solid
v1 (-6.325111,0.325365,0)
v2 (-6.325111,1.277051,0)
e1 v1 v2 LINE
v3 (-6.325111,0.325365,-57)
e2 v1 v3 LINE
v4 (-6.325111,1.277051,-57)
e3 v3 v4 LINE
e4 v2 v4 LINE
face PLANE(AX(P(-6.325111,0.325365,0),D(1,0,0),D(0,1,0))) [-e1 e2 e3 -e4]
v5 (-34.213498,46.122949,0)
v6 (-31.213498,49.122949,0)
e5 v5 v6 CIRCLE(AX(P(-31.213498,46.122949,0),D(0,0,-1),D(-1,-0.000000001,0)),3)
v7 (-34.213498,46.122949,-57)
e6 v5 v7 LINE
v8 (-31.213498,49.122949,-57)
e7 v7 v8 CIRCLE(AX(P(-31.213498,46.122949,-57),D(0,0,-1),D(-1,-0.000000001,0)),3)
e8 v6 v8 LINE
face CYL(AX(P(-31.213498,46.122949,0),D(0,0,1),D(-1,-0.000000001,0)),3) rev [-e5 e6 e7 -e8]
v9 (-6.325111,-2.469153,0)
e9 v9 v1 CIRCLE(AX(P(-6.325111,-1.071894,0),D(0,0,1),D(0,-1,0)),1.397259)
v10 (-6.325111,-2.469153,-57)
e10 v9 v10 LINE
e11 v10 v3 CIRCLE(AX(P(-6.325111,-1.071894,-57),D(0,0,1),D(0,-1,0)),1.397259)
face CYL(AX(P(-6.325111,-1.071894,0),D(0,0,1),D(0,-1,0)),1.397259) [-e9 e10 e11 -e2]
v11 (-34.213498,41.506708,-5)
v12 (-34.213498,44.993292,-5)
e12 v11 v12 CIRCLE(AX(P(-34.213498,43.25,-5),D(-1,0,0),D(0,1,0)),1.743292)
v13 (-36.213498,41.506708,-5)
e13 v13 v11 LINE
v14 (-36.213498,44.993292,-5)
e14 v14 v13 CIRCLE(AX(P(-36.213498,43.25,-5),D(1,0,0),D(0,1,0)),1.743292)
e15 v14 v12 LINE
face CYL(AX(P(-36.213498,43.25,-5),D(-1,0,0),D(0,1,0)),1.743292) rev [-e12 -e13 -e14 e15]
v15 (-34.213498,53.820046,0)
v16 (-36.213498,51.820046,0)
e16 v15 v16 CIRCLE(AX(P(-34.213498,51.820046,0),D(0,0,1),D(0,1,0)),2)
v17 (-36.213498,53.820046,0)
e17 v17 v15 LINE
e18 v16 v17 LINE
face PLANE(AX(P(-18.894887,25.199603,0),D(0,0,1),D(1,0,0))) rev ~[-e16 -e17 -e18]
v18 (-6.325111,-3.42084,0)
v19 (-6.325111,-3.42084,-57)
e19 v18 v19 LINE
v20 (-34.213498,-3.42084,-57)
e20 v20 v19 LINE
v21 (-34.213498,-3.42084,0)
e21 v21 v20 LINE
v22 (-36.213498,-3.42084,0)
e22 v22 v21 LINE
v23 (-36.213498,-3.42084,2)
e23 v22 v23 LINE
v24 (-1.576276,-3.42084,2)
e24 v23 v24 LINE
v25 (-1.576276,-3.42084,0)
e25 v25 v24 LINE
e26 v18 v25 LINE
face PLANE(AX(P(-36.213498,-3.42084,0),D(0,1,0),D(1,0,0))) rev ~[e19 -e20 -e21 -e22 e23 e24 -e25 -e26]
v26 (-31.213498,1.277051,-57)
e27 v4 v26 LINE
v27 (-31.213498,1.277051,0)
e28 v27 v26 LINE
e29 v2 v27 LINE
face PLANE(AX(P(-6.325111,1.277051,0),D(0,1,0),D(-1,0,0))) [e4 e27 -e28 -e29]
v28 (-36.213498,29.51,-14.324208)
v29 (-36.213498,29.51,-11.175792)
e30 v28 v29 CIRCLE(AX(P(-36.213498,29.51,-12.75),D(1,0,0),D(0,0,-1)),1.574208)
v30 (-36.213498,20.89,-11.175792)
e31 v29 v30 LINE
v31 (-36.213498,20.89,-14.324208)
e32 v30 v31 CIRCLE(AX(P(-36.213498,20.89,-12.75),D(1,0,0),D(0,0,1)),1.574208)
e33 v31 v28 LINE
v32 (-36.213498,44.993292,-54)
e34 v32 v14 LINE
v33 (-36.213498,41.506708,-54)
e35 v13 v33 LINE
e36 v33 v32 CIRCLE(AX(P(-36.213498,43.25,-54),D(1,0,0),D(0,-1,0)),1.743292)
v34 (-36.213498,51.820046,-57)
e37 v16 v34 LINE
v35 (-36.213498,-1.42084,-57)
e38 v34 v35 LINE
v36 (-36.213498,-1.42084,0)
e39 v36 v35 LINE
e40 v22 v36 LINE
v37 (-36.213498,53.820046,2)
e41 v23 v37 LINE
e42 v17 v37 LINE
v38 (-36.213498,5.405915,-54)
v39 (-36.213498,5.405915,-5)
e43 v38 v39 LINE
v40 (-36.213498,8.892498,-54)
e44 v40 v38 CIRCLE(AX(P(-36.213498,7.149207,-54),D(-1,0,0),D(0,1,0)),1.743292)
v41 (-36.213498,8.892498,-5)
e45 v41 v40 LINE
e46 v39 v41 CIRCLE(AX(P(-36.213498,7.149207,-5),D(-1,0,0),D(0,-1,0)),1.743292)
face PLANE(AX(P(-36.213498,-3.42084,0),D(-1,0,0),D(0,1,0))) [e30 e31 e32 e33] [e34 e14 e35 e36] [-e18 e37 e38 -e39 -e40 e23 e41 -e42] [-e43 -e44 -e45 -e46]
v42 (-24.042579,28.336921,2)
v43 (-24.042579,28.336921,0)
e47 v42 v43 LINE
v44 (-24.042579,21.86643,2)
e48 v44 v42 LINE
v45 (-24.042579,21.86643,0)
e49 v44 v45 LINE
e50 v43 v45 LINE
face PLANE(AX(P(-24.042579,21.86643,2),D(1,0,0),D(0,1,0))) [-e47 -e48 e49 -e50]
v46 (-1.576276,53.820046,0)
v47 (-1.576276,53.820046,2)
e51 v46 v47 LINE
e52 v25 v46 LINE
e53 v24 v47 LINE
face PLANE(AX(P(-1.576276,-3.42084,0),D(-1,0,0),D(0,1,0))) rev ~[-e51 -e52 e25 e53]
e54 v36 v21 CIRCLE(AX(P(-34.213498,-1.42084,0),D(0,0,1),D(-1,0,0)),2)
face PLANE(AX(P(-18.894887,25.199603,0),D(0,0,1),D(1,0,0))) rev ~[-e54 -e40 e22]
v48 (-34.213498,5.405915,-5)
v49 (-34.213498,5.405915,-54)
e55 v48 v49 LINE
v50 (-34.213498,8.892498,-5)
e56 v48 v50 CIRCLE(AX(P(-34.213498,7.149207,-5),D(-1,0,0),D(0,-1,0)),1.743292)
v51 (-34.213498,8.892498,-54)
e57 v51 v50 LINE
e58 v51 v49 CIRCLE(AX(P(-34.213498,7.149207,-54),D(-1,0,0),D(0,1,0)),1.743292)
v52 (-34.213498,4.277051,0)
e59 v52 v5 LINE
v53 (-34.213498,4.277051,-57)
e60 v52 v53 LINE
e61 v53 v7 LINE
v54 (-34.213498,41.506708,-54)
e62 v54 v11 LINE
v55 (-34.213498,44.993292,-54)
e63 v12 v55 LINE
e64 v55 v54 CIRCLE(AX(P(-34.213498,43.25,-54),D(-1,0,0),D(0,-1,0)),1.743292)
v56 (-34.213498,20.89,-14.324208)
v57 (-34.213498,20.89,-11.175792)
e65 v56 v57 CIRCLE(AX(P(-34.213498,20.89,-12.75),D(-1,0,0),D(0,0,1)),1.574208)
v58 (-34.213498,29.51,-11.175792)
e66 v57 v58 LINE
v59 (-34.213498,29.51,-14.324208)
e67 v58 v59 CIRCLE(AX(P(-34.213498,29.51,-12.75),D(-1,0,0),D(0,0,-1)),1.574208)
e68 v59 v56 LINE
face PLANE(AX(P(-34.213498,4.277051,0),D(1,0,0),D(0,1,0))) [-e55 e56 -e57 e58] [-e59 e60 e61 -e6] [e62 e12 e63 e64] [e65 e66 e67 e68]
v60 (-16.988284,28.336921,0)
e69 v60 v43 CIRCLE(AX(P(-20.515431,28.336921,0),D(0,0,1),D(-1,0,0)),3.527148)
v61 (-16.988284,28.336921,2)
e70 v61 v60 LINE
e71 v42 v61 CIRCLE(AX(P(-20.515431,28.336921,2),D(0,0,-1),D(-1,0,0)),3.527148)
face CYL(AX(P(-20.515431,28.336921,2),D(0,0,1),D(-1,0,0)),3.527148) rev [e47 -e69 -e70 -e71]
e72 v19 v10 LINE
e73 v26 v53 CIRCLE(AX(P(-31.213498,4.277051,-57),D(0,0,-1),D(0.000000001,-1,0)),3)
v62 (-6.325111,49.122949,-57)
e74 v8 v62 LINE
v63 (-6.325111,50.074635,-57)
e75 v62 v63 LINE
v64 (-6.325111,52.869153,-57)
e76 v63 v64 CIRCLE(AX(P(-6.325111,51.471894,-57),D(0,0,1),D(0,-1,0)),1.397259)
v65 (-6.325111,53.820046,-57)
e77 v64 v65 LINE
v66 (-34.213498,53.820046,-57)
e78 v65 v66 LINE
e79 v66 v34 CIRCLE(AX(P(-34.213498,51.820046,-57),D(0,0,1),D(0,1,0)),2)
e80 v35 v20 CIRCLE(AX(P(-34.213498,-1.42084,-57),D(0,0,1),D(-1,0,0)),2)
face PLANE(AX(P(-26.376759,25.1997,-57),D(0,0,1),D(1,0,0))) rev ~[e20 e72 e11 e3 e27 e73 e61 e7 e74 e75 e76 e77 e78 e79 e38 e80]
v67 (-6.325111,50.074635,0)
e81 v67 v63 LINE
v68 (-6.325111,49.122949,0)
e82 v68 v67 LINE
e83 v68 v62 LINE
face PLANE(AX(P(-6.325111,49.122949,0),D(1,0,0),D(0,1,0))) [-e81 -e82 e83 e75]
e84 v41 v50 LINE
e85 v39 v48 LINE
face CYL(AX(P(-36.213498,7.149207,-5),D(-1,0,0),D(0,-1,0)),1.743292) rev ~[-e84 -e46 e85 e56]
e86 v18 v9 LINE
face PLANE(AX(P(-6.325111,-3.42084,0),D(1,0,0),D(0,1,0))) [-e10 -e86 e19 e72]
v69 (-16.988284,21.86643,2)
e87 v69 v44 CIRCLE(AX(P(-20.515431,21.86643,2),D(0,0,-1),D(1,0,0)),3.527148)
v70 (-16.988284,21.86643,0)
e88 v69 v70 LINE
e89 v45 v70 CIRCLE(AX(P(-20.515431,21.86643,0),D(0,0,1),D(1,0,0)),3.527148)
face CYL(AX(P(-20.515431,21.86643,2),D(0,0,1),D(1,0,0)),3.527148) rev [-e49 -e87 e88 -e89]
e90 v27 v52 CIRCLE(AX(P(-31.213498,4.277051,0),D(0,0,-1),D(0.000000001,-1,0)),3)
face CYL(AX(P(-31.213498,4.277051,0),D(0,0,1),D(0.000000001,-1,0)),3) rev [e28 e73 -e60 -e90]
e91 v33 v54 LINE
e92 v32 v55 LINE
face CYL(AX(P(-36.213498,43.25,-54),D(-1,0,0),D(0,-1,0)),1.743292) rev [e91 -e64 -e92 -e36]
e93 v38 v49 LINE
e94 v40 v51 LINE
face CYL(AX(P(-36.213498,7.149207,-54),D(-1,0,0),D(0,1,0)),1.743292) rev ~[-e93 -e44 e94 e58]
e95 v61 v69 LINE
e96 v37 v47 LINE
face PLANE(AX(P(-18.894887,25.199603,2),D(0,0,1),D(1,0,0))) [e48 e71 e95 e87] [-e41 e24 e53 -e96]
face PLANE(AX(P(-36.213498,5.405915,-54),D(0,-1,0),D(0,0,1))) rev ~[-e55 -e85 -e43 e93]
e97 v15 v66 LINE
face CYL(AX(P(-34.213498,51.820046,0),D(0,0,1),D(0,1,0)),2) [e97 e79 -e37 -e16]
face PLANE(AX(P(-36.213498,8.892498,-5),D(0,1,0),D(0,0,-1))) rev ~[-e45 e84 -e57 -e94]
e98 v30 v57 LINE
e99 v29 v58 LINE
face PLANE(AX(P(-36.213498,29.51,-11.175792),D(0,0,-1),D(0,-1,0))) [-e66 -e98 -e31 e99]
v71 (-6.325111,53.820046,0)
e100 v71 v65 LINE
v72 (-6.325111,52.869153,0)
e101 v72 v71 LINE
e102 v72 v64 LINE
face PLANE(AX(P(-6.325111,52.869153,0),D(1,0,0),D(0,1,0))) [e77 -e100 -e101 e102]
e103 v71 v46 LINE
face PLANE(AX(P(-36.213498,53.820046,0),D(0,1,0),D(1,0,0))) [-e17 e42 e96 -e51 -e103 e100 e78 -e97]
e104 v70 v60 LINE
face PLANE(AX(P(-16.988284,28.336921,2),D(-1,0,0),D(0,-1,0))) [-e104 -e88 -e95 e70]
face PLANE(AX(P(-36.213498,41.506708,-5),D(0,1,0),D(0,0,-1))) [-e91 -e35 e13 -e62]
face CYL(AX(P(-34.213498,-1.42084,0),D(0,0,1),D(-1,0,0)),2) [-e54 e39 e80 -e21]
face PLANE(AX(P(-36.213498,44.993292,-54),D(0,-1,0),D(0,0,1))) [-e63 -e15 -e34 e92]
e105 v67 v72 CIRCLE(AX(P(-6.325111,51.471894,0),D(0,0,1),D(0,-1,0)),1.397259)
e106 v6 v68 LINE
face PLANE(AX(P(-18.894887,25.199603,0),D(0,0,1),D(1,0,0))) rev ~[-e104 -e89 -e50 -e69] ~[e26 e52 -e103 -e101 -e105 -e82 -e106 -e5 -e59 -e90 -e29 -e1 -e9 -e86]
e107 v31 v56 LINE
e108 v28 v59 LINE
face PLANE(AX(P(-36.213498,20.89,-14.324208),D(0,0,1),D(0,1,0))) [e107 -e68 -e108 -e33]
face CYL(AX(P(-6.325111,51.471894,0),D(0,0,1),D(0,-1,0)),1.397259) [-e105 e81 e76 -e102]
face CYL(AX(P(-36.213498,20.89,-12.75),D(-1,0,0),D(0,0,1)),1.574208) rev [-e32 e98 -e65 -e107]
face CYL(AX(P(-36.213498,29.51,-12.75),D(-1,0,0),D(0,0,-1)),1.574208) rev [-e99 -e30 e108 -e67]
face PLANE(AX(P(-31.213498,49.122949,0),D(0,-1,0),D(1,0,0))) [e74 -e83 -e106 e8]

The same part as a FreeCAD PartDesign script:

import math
import FreeCAD as App
import Part
import Sketcher

V = App.Vector
Q = App.Units.Quantity

doc = App.newDocument("Part")
body = doc.addObject("PartDesign::Body", "Body")

# Sketch on XY plane
sketch1 = doc.addObject("Sketcher::SketchObject", "Sketch")
body.addObject(sketch1)
sketch1.AttachmentSupport = (doc.XY_Plane, [""])
sketch1.MapMode = "FlatFace"
sketch1.addGeometry([
    Part.LineSegment(V(-36, 54, 0), V(-36, -3, 0)),
    Part.LineSegment(V(-36, -3, 0), V(-2, -3, 0)),
    Part.LineSegment(V(-2, -3, 0), V(-2, 54, 0)),
    Part.LineSegment(V(-2, 54, 0), V(-36, 54, 0)),
], False)
sketch1.addConstraint([
    Sketcher.Constraint("Coincident", 0, 2, 1, 1),
    Sketcher.Constraint("Coincident", 1, 2, 2, 1),
    Sketcher.Constraint("Coincident", 2, 2, 3, 1),
    Sketcher.Constraint("Coincident", 3, 2, 0, 1),
    Sketcher.Constraint("Vertical", 0),
    Sketcher.Constraint("Horizontal", 1),
    Sketcher.Constraint("Vertical", 2),
    Sketcher.Constraint("Horizontal", 3),
    Sketcher.Constraint("DistanceX", 1, 1, 1, 2, Q("34.637222 mm")),
    Sketcher.Constraint("DistanceY", 0, 2, 0, 1, Q("57.240886 mm")),
    Sketcher.Constraint("DistanceY", 0, 2, -1, 1, Q("3.42084 mm")),
    Sketcher.Constraint("DistanceX", 0, 2, -1, 1, Q("36.213498 mm")),
])
pad1 = doc.addObject("PartDesign::Pad", "Pad")
body.addObject(pad1)
pad1.Profile = sketch1
pad1.Length = 2

# Sketch on XY plane
sketch2 = doc.addObject("Sketcher::SketchObject", "Sketch001")
body.addObject(sketch2)
sketch2.AttachmentSupport = (doc.XY_Plane, [""])
sketch2.MapMode = "FlatFace"
sketch2.addGeometry([
    Part.LineSegment(V(-6.3, 53.8, 0), V(-6.3, 52.9, 0)),  # 0
    Part.ArcOfCircle(Part.Circle(V(-6.3, 51.5, 0), V(0, 0, 1), 1.4), math.radians(-90), math.radians(90)),  # 1
    Part.LineSegment(V(-6.3, 50.1, 0), V(-6.3, 49.1, 0)),  # 2
    Part.LineSegment(V(-6.3, 49.1, 0), V(-31.2, 49.1, 0)),  # 3
    Part.ArcOfCircle(Part.Circle(V(-31.2, 46.1, 0), V(0, 0, 1), 3), math.radians(90), math.radians(180)),  # 4
    Part.LineSegment(V(-34.2, 46.1, 0), V(-34.2, 4.3, 0)),  # 5
    Part.ArcOfCircle(Part.Circle(V(-31.2, 4.3, 0), V(0, 0, 1), 3), math.radians(180), math.radians(270)),  # 6
    Part.LineSegment(V(-31.2, 1.3, 0), V(-6.3, 1.3, 0)),  # 7
    Part.LineSegment(V(-6.3, 1.3, 0), V(-6.3, 0.3, 0)),  # 8
    Part.ArcOfCircle(Part.Circle(V(-6.3, -1.1, 0), V(0, 0, 1), 1.4), math.radians(-90), math.radians(90)),  # 9
    Part.LineSegment(V(-6.3, -2.5, 0), V(-6.3, -3.4, 0)),  # 10
    Part.LineSegment(V(-6.3, -3.4, 0), V(-34.2, -3.4, 0)),  # 11
    Part.ArcOfCircle(Part.Circle(V(-34.2, -1.4, 0), V(0, 0, 1), 2), math.radians(180), math.radians(270)),  # 12
    Part.LineSegment(V(-36.2, -1.4, 0), V(-36.2, 51.8, 0)),  # 13
    Part.ArcOfCircle(Part.Circle(V(-34.2, 51.8, 0), V(0, 0, 1), 2), math.radians(90), math.radians(180)),  # 14
    Part.LineSegment(V(-34.2, 53.8, 0), V(-6.3, 53.8, 0)),  # 15
], False)
sketch2.addConstraint([
    Sketcher.Constraint("Coincident", 0, 2, 1, 2),
    Sketcher.Constraint("Coincident", 1, 1, 2, 1),
    Sketcher.Constraint("Coincident", 2, 2, 3, 1),
    Sketcher.Constraint("Tangent", 3, 2, 4, 1),
    Sketcher.Constraint("Tangent", 4, 2, 5, 1),
    Sketcher.Constraint("Tangent", 5, 2, 6, 1),
    Sketcher.Constraint("Tangent", 6, 2, 7, 1),
    Sketcher.Constraint("Coincident", 7, 2, 8, 1),
    Sketcher.Constraint("Coincident", 8, 2, 9, 2),
    Sketcher.Constraint("Coincident", 9, 1, 10, 1),
    Sketcher.Constraint("Coincident", 10, 2, 11, 1),
    Sketcher.Constraint("Tangent", 11, 2, 12, 2),
    Sketcher.Constraint("Tangent", 12, 1, 13, 1),
    Sketcher.Constraint("Tangent", 13, 2, 14, 2),
    Sketcher.Constraint("Tangent", 14, 1, 15, 1),
    Sketcher.Constraint("Coincident", 15, 2, 0, 1),
    Sketcher.Constraint("Vertical", 0),
    Sketcher.Constraint("Vertical", 2),
    Sketcher.Constraint("Horizontal", 3),
    Sketcher.Constraint("Vertical", 5),
    Sketcher.Constraint("Horizontal", 7),
    Sketcher.Constraint("Vertical", 8),
    Sketcher.Constraint("Vertical", 10),
    Sketcher.Constraint("Horizontal", 11),
    Sketcher.Constraint("Vertical", 13),
    Sketcher.Constraint("Horizontal", 15),
    Sketcher.Constraint("Equal", 4, 6),
    Sketcher.Constraint("Equal", 1, 9),
    Sketcher.Constraint("Equal", 12, 14),
    Sketcher.Constraint("Vertical", 1, 3, 9, 3),
    Sketcher.Constraint("Vertical", 9, 3, 0, 2),
    Sketcher.Constraint("Vertical", 0, 2, 1, 1),
    Sketcher.Constraint("Vertical", 14, 3, 4, 2),
    Sketcher.Constraint("Vertical", 2, 2, 7, 2),
    Sketcher.Constraint("Vertical", 8, 2, 9, 1),
    Sketcher.Constraint("Equal", 2, 8),
    Sketcher.Constraint("Equal", 8, 10),
    Sketcher.Constraint("Radius", 4, Q("3 mm")),
    Sketcher.Constraint("Radius", 12, Q("2 mm")),
    Sketcher.Constraint("Radius", 1, Q("1.397259 mm")),
    Sketcher.Constraint("DistanceY", 5, 2, 5, 1, Q("41.845898 mm")),
    Sketcher.Constraint("DistanceX", 3, 2, 3, 1, Q("24.888387 mm")),
    Sketcher.Constraint("DistanceY", 0, 2, 0, 1, Q("0.950893 mm")),
    Sketcher.Constraint("DistanceY", 2, 2, 2, 1, Q("0.951686 mm")),
    Sketcher.Constraint("DistanceX", 1, 3, -1, 1, Q("6.325111 mm")),
    Sketcher.Constraint("DistanceY", -1, 1, 4, 3, Q("46.122949 mm")),
])
pad2 = doc.addObject("PartDesign::Pad", "Pad001")
body.addObject(pad2)
pad2.Profile = sketch2
pad2.Length = 57
pad2.Reversed = True

# Sketch on YZ plane
sketch3 = doc.addObject("Sketcher::SketchObject", "Sketch002")
body.addObject(sketch3)
sketch3.AttachmentSupport = (doc.YZ_Plane, [""])
sketch3.MapMode = "FlatFace"
sketch3.AttachmentOffset = App.Placement(V(0, 0, -36.213498), App.Rotation())
sketch3.addGeometry([
    Part.LineSegment(V(41.5, -54, 0), V(41.5, -5, 0)),  # 0
    Part.ArcOfCircle(Part.Circle(V(43.2, -5, 0), V(0, 0, 1), 1.7), math.radians(0), math.radians(180)),  # 1
    Part.LineSegment(V(45, -5, 0), V(45, -54, 0)),  # 2
    Part.ArcOfCircle(Part.Circle(V(43.2, -54, 0), V(0, 0, 1), 1.7), math.radians(180), math.radians(360)),  # 3
    Part.LineSegment(V(8.9, -5, 0), V(8.9, -54, 0)),  # 4
    Part.ArcOfCircle(Part.Circle(V(7.1, -54, 0), V(0, 0, 1), 1.7), math.radians(180), math.radians(360)),  # 5
    Part.LineSegment(V(5.4, -54, 0), V(5.4, -5, 0)),  # 6
    Part.ArcOfCircle(Part.Circle(V(7.1, -5, 0), V(0, 0, 1), 1.7), math.radians(0), math.radians(180)),  # 7
], False)
sketch3.addConstraint([
    Sketcher.Constraint("Tangent", 0, 2, 1, 2),
    Sketcher.Constraint("Tangent", 1, 1, 2, 1),
    Sketcher.Constraint("Tangent", 2, 2, 3, 2),
    Sketcher.Constraint("Tangent", 3, 1, 0, 1),
    Sketcher.Constraint("Tangent", 4, 2, 5, 2),
    Sketcher.Constraint("Tangent", 5, 1, 6, 1),
    Sketcher.Constraint("Tangent", 6, 2, 7, 2),
    Sketcher.Constraint("Tangent", 7, 1, 4, 1),
    Sketcher.Constraint("Vertical", 0),
    Sketcher.Constraint("Vertical", 2),
    Sketcher.Constraint("Vertical", 4),
    Sketcher.Constraint("Vertical", 6),
    Sketcher.Constraint("Equal", 3, 5),
    Sketcher.Constraint("Horizontal", 3, 3, 5, 3),
    Sketcher.Constraint("Horizontal", 1, 3, 7, 3),
    Sketcher.Constraint("DistanceY", 0, 1, 0, 2, Q("49 mm")),
    Sketcher.Constraint("DistanceY", 1, 3, -1, 1, Q("5 mm")),
    Sketcher.Constraint("DistanceX", -1, 1, 1, 3, Q("43.25 mm")),
    Sketcher.Constraint("Radius", 1, Q("1.743292 mm")),
    Sketcher.Constraint("DistanceX", -1, 1, 4, 2, Q("8.892498 mm")),
])
pocket1 = doc.addObject("PartDesign::Pocket", "Pocket")
body.addObject(pocket1)
pocket1.Profile = sketch3
pocket1.Length = 3
pocket1.Reversed = True

# Sketch on YZ plane
sketch4 = doc.addObject("Sketcher::SketchObject", "Sketch003")
body.addObject(sketch4)
sketch4.AttachmentSupport = (doc.YZ_Plane, [""])
sketch4.MapMode = "FlatFace"
sketch4.AttachmentOffset = App.Placement(V(0, 0, -36.213498), App.Rotation())
sketch4.addGeometry([
    Part.LineSegment(V(29.5, -14.3, 0), V(20.9, -14.3, 0)),
    Part.ArcOfCircle(Part.Circle(V(20.9, -12.8, 0), V(0, 0, 1), 1.6), math.radians(90), math.radians(270)),
    Part.LineSegment(V(20.9, -11.2, 0), V(29.5, -11.2, 0)),
    Part.ArcOfCircle(Part.Circle(V(29.5, -12.8, 0), V(0, 0, 1), 1.6), math.radians(-90), math.radians(90)),
], False)
sketch4.addConstraint([
    Sketcher.Constraint("Tangent", 0, 2, 1, 2),
    Sketcher.Constraint("Tangent", 1, 1, 2, 1),
    Sketcher.Constraint("Tangent", 2, 2, 3, 2),
    Sketcher.Constraint("Tangent", 3, 1, 0, 1),
    Sketcher.Constraint("Horizontal", 0),
    Sketcher.Constraint("Horizontal", 2),
    Sketcher.Constraint("DistanceX", 0, 2, 0, 1, Q("8.62 mm")),
    Sketcher.Constraint("DistanceX", -1, 1, 1, 3, Q("20.89 mm")),
    Sketcher.Constraint("DistanceY", 1, 3, -1, 1, Q("12.75 mm")),
    Sketcher.Constraint("Radius", 1, Q("1.574208 mm")),
])
pocket2 = doc.addObject("PartDesign::Pocket", "Pocket001")
body.addObject(pocket2)
pocket2.Profile = sketch4
pocket2.Length = 6
pocket2.Reversed = True

# Sketch on XY plane
sketch5 = doc.addObject("Sketcher::SketchObject", "Sketch004")
body.addObject(sketch5)
sketch5.AttachmentSupport = (doc.XY_Plane, [""])
sketch5.MapMode = "FlatFace"
sketch5.AttachmentOffset = App.Placement(V(0, 0, 2), App.Rotation())
sketch5.addGeometry([
    Part.LineSegment(V(-24, 28.3, 0), V(-24, 21.9, 0)),
    Part.ArcOfCircle(Part.Circle(V(-20.5, 21.9, 0), V(0, 0, 1), 3.5), math.radians(180), math.radians(360)),
    Part.LineSegment(V(-17, 21.9, 0), V(-17, 28.3, 0)),
    Part.ArcOfCircle(Part.Circle(V(-20.5, 28.3, 0), V(0, 0, 1), 3.5), math.radians(0), math.radians(180)),
], False)
sketch5.addConstraint([
    Sketcher.Constraint("Tangent", 0, 2, 1, 1),
    Sketcher.Constraint("Tangent", 1, 2, 2, 1),
    Sketcher.Constraint("Tangent", 2, 2, 3, 1),
    Sketcher.Constraint("Tangent", 3, 2, 0, 1),
    Sketcher.Constraint("Vertical", 0),
    Sketcher.Constraint("Vertical", 2),
    Sketcher.Constraint("Radius", 1, Q("3.527148 mm")),
    Sketcher.Constraint("DistanceY", 0, 2, 0, 1, Q("6.470491 mm")),
    Sketcher.Constraint("DistanceX", 1, 3, -1, 1, Q("20.515431 mm")),
    Sketcher.Constraint("DistanceY", -1, 1, 1, 3, Q("21.86643 mm")),
])
pocket3 = doc.addObject("PartDesign::Pocket", "Pocket002")
body.addObject(pocket3)
pocket3.Profile = sketch5
pocket3.Type = "UpToFirst"

doc.recompute()
